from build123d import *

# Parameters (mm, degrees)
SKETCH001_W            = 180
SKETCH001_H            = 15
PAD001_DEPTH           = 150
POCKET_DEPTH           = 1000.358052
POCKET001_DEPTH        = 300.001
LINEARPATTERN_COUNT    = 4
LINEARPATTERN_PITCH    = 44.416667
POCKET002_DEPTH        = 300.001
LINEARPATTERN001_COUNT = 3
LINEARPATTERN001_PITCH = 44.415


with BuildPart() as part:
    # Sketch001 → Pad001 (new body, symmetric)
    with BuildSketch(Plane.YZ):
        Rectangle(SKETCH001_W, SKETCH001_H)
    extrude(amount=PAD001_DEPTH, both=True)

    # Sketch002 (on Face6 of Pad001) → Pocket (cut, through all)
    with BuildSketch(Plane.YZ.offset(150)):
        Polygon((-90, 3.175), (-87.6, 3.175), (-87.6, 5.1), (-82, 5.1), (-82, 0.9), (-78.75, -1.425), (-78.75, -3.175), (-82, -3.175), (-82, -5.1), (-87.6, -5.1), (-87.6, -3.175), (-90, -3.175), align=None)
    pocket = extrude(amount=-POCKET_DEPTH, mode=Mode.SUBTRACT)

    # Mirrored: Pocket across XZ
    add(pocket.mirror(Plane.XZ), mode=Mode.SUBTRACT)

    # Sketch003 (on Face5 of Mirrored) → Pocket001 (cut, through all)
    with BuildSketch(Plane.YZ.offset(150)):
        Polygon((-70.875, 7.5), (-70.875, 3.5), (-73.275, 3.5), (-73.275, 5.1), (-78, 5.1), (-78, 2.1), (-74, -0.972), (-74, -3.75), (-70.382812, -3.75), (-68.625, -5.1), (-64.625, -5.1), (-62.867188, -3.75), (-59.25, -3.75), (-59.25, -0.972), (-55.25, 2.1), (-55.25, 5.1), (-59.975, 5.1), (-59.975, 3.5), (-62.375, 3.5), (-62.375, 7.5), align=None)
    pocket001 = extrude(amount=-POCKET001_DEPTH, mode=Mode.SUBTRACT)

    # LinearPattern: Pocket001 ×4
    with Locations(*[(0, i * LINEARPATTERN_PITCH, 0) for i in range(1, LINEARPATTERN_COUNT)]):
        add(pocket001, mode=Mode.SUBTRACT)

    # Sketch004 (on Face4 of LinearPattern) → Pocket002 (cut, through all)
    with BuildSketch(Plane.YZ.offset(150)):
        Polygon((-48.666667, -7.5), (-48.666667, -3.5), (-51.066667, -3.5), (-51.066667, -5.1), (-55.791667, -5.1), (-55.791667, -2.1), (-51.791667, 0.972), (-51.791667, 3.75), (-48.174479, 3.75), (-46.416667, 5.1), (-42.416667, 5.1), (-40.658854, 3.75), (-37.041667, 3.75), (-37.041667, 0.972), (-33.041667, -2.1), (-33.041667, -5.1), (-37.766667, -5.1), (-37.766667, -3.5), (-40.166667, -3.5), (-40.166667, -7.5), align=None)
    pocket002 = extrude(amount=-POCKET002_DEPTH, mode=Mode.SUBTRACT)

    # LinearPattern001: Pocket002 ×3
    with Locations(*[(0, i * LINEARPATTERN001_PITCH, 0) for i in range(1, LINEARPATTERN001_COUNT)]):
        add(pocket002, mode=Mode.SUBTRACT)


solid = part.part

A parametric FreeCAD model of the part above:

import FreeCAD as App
import Part
import Sketcher
from FreeCAD import Vector


def add_polygon(sketch, points):
    """Adds a closed chain of lines whose ends are joined by coincident constraints."""
    first, n = sketch.GeometryCount, len(points)
    for a, b in zip(points, points[1:] + points[:1]):
        sketch.addGeometry(Part.LineSegment(App.Vector(*a, 0), App.Vector(*b, 0)), False)
    for i in range(n):
        sketch.addConstraint(Sketcher.Constraint("Coincident", first + i, 2, first + (i + 1) % n, 1))

doc = App.newDocument("Part")
body = doc.addObject("PartDesign::Body", "Body")

sketch1 = doc.addObject("Sketcher::SketchObject", "Sketch")
body.addObject(sketch1)
sketch1.AttachmentSupport = (doc.YZ_Plane, [""])
sketch1.MapMode = "FlatFace"
add_polygon(sketch1, [(-90, 8), (-90, -8), (90, -8), (90, 8)])
sketch1.addConstraint([
    Sketcher.Constraint("Vertical", 0),
    Sketcher.Constraint("Horizontal", 1),
    Sketcher.Constraint("Vertical", 2),
    Sketcher.Constraint("Horizontal", 3),
    Sketcher.Constraint("Symmetric", 0, 2, 2, 2, -1, 1),
    Sketcher.Constraint("DistanceX", 1, 1, 1, 2, 180.0),
    Sketcher.Constraint("DistanceY", 0, 2, 0, 1, 15.0),
])
pad1 = doc.addObject("PartDesign::Pad", "Pad")
body.addObject(pad1)
pad1.Profile = sketch1
pad1.Length = 300
pad1.Midplane = True

sketch2 = doc.addObject("Sketcher::SketchObject", "Sketch001")
body.addObject(sketch2)
sketch2.AttachmentSupport = (doc.YZ_Plane, [""])
sketch2.MapMode = "FlatFace"
sketch2.AttachmentOffset = App.Placement(Vector(0, 0, 150), App.Rotation())
add_polygon(sketch2, [(-87.6, 3.2), (-90, 3.2), (-90, -3.2), (-87.6, -3.2), (-87.6, -5.1), (-82, -5.1), (-82, -3.2), (-78.8, -3.2), (-78.8, -1.4), (-82, 0.9), (-82, 5.1), (-87.6, 5.1)])
sketch2.addConstraint([
    Sketcher.Constraint("Horizontal", 0),
    Sketcher.Constraint("Vertical", 1),
    Sketcher.Constraint("Horizontal", 2),
    Sketcher.Constraint("Vertical", 3),
    Sketcher.Constraint("Horizontal", 4),
    Sketcher.Constraint("Vertical", 5),
    Sketcher.Constraint("Horizontal", 6),
    Sketcher.Constraint("Vertical", 7),
    Sketcher.Constraint("Vertical", 9),
    Sketcher.Constraint("Horizontal", 10),
    Sketcher.Constraint("Vertical", 11),
    Sketcher.Constraint("Symmetric", 4, 2, 9, 2, -1),
    Sketcher.Constraint("Symmetric", 2, 2, 11, 2, -1),
    Sketcher.Constraint("Horizontal", 2, 2, 5, 2),
    Sketcher.Constraint("DistanceX", 0, 2, 0, 1, 2.4),
    Sketcher.Constraint("DistanceX", 4, 1, 4, 2, 5.6),
    Sketcher.Constraint("DistanceY", 9, 1, 9, 2, 4.2),
    Sketcher.Constraint("DistanceX", 0, 2, -1, 1, 90.0),
    Sketcher.Constraint("DistanceY", 4, 2, 8, 2, 6.0),
    Sketcher.Constraint("DistanceX", 6, 1, 6, 2, 3.25),
    Sketcher.Constraint("DistanceY", 1, 2, 1, 1, 6.35),
    Sketcher.Constraint("DistanceY", 7, 1, 7, 2, 1.75),
])
pocket1 = doc.addObject("PartDesign::Pocket", "Pocket")
body.addObject(pocket1)
pocket1.Profile = sketch2
pocket1.Type = "ThroughAll"
doc.recompute()

mirrored = doc.addObject("PartDesign::Mirrored", "Mirrored")
body.addObject(mirrored)
mirrored.Originals = [pocket1]
mirrored.MirrorPlane = (doc.XZ_Plane, [""])
body.Tip = mirrored

sketch3 = doc.addObject("Sketcher::SketchObject", "Sketch002")
body.addObject(sketch3)
sketch3.AttachmentSupport = (doc.YZ_Plane, [""])
sketch3.MapMode = "FlatFace"
sketch3.AttachmentOffset = App.Placement(Vector(0, 0, 150), App.Rotation())
add_polygon(sketch3, [(-70.9, 7.5), (-70.9, 3.5), (-73.3, 3.5), (-73.3, 5.1), (-78, 5.1), (-78, 2.1), (-74, -1), (-74, -3.8), (-70.4, -3.8), (-68.6, -5.1), (-64.6, -5.1), (-62.9, -3.8), (-59.2, -3.8), (-59.2, -1), (-55.2, 2.1), (-55.2, 5.1), (-60, 5.1), (-60, 3.5), (-62.4, 3.5), (-62.4, 7.5)])
sketch3.addConstraint([
    Sketcher.Constraint("Vertical", 0),
    Sketcher.Constraint("Horizontal", 1),
    Sketcher.Constraint("Vertical", 2),
    Sketcher.Constraint("Horizontal", 3),
    Sketcher.Constraint("Vertical", 4),
    Sketcher.Constraint("Vertical", 6),
    Sketcher.Constraint("Horizontal", 7),
    Sketcher.Constraint("Horizontal", 9),
    Sketcher.Constraint("Horizontal", 11),
    Sketcher.Constraint("Vertical", 12),
    Sketcher.Constraint("Vertical", 14),
    Sketcher.Constraint("Horizontal", 15),
    Sketcher.Constraint("Vertical", 16),
    Sketcher.Constraint("Horizontal", 17),
    Sketcher.Constraint("Vertical", 18),
    Sketcher.Constraint("Horizontal", 19),
    Sketcher.Constraint("Parallel", 5, 8),
    Sketcher.Constraint("Parallel", 10, 13),
    Sketcher.Constraint("Horizontal", 7, 2, 10, 2),
    Sketcher.Constraint("Horizontal", 5, 2, 12, 2),
    Sketcher.Constraint("Horizontal", 4, 2, 13, 2),
    Sketcher.Constraint("Horizontal", 3, 2, 14, 2),
    Sketcher.Constraint("Horizontal", 1, 2, 16, 2),
    Sketcher.Constraint("Equal", 7, 11),
    Sketcher.Constraint("Equal", 3, 15),
    Sketcher.Constraint("Equal", 1, 17),
    Sketcher.Constraint("Equal", 9, 0),
    Sketcher.Constraint("Equal", 8, 10),
    Sketcher.Constraint("DistanceX", 9, 1, 9, 2, 4.0),
    Sketcher.Constraint("DistanceY", 4, 2, 4, 1, 3.0),
    Sketcher.Constraint("DistanceX", 1, 2, 1, 1, 2.4),
    Sketcher.Constraint("DistanceX", 19, 2, 19, 1, 8.5),
    Sketcher.Constraint("DistanceY", 2, 1, 2, 2, 1.6),
    Sketcher.Constraint("DistanceX", 3, 2, -1, 1, 78.0),
    Sketcher.Constraint("DistanceX", 5, 2, -1, 1, 74.0),
    Sketcher.Constraint("DistanceY", -1, 1, 0, 2, 3.5),
    Sketcher.Constraint("DistanceY", 8, 2, -1, 1, 5.1),
    Sketcher.Constraint("DistanceX", 3, 2, 3, 1, 4.725),
    Sketcher.Constraint("DistanceY", 6, 2, 6, 1, 2.778),
    Sketcher.Constraint("DistanceY", 6, 2, -1, 1, 3.75),
])
pocket2 = doc.addObject("PartDesign::Pocket", "Pocket001")
body.addObject(pocket2)
pocket2.Profile = sketch3
pocket2.Type = "ThroughAll"
doc.recompute()

linearpattern = doc.addObject("PartDesign::LinearPattern", "LinearPattern")
body.addObject(linearpattern)
linearpattern.Originals = [pocket2]
linearpattern.Direction = (doc.Y_Axis, [""])
linearpattern.Mode = "offset"
linearpattern.Offset = 44.416667
linearpattern.Occurrences = 4
body.Tip = linearpattern

sketch4 = doc.addObject("Sketcher::SketchObject", "Sketch003")
body.addObject(sketch4)
sketch4.AttachmentSupport = (doc.YZ_Plane, [""])
sketch4.MapMode = "FlatFace"
sketch4.AttachmentOffset = App.Placement(Vector(0, 0, 150), App.Rotation())
add_polygon(sketch4, [(-48.7, -3.5), (-48.7, -7.5), (-40.2, -7.5), (-40.2, -3.5), (-37.8, -3.5), (-37.8, -5.1), (-33, -5.1), (-33, -2.1), (-37, 1), (-37, 3.8), (-40.7, 3.8), (-42.4, 5.1), (-46.4, 5.1), (-48.2, 3.8), (-51.8, 3.8), (-51.8, 1), (-55.8, -2.1), (-55.8, -5.1), (-51.1, -5.1), (-51.1, -3.5)])
sketch4.addConstraint([
    Sketcher.Constraint("Vertical", 0),
    Sketcher.Constraint("Horizontal", 1),
    Sketcher.Constraint("Vertical", 2),
    Sketcher.Constraint("Horizontal", 3),
    Sketcher.Constraint("Vertical", 4),
    Sketcher.Constraint("Horizontal", 5),
    Sketcher.Constraint("Vertical", 6),
    Sketcher.Constraint("Vertical", 8),
    Sketcher.Constraint("Horizontal", 9),
    Sketcher.Constraint("Horizontal", 11),
    Sketcher.Constraint("Horizontal", 13),
    Sketcher.Constraint("Vertical", 14),
    Sketcher.Constraint("Vertical", 16),
    Sketcher.Constraint("Horizontal", 17),
    Sketcher.Constraint("Vertical", 18),
    Sketcher.Constraint("Horizontal", 19),
    Sketcher.Constraint("Parallel", 7, 10),
    Sketcher.Constraint("Parallel", 12, 15),
    Sketcher.Constraint("Horizontal", 9, 2, 12, 2),
    Sketcher.Constraint("Horizontal", 7, 2, 14, 2),
    Sketcher.Constraint("Horizontal", 6, 2, 15, 2),
    Sketcher.Constraint("Horizontal", 5, 2, 16, 2),
    Sketcher.Constraint("Horizontal", 3, 2, 18, 2),
    Sketcher.Constraint("Equal", 9, 13),
    Sketcher.Constraint("Equal", 5, 17),
    Sketcher.Constraint("Equal", 3, 19),
    Sketcher.Constraint("Equal", 11, 0),
    Sketcher.Constraint("Equal", 10, 12),
    Sketcher.Constraint("DistanceX", 11, 2, 11, 1, 4.0),
    Sketcher.Constraint("DistanceY", 6, 1, 6, 2, 3.0),
    Sketcher.Constraint("DistanceX", 1, 1, 1, 2, 8.5),
    Sketcher.Constraint("DistanceX", 3, 1, 3, 2, 2.4),
    Sketcher.Constraint("DistanceY", 4, 2, 4, 1, 1.6),
    Sketcher.Constraint("DistanceX", 7, 2, 6, 2, 4.0),
    Sketcher.Constraint("DistanceY", 0, 2, -1, 1, 7.5),
    Sketcher.Constraint("DistanceY", -1, 1, 10, 2, 5.1),
    Sketcher.Constraint("DistanceX", 5, 1, 5, 2, 4.725),
    Sketcher.Constraint("DistanceY", 8, 1, 8, 2, 2.778),
    Sketcher.Constraint("DistanceY", -1, 1, 8, 2, 3.75),
    Sketcher.Constraint("DistanceX", 12, 2, -1, 1, 48.174479),
])
pocket3 = doc.addObject("PartDesign::Pocket", "Pocket002")
body.addObject(pocket3)
pocket3.Profile = sketch4
pocket3.Type = "ThroughAll"
doc.recompute()

linearpattern2 = doc.addObject("PartDesign::LinearPattern", "LinearPattern001")
body.addObject(linearpattern2)
linearpattern2.Originals = [pocket3]
linearpattern2.Direction = (doc.Y_Axis, [""])
linearpattern2.Mode = "offset"
linearpattern2.Offset = 44.415
linearpattern2.Occurrences = 3
body.Tip = linearpattern2

doc.recompute()
